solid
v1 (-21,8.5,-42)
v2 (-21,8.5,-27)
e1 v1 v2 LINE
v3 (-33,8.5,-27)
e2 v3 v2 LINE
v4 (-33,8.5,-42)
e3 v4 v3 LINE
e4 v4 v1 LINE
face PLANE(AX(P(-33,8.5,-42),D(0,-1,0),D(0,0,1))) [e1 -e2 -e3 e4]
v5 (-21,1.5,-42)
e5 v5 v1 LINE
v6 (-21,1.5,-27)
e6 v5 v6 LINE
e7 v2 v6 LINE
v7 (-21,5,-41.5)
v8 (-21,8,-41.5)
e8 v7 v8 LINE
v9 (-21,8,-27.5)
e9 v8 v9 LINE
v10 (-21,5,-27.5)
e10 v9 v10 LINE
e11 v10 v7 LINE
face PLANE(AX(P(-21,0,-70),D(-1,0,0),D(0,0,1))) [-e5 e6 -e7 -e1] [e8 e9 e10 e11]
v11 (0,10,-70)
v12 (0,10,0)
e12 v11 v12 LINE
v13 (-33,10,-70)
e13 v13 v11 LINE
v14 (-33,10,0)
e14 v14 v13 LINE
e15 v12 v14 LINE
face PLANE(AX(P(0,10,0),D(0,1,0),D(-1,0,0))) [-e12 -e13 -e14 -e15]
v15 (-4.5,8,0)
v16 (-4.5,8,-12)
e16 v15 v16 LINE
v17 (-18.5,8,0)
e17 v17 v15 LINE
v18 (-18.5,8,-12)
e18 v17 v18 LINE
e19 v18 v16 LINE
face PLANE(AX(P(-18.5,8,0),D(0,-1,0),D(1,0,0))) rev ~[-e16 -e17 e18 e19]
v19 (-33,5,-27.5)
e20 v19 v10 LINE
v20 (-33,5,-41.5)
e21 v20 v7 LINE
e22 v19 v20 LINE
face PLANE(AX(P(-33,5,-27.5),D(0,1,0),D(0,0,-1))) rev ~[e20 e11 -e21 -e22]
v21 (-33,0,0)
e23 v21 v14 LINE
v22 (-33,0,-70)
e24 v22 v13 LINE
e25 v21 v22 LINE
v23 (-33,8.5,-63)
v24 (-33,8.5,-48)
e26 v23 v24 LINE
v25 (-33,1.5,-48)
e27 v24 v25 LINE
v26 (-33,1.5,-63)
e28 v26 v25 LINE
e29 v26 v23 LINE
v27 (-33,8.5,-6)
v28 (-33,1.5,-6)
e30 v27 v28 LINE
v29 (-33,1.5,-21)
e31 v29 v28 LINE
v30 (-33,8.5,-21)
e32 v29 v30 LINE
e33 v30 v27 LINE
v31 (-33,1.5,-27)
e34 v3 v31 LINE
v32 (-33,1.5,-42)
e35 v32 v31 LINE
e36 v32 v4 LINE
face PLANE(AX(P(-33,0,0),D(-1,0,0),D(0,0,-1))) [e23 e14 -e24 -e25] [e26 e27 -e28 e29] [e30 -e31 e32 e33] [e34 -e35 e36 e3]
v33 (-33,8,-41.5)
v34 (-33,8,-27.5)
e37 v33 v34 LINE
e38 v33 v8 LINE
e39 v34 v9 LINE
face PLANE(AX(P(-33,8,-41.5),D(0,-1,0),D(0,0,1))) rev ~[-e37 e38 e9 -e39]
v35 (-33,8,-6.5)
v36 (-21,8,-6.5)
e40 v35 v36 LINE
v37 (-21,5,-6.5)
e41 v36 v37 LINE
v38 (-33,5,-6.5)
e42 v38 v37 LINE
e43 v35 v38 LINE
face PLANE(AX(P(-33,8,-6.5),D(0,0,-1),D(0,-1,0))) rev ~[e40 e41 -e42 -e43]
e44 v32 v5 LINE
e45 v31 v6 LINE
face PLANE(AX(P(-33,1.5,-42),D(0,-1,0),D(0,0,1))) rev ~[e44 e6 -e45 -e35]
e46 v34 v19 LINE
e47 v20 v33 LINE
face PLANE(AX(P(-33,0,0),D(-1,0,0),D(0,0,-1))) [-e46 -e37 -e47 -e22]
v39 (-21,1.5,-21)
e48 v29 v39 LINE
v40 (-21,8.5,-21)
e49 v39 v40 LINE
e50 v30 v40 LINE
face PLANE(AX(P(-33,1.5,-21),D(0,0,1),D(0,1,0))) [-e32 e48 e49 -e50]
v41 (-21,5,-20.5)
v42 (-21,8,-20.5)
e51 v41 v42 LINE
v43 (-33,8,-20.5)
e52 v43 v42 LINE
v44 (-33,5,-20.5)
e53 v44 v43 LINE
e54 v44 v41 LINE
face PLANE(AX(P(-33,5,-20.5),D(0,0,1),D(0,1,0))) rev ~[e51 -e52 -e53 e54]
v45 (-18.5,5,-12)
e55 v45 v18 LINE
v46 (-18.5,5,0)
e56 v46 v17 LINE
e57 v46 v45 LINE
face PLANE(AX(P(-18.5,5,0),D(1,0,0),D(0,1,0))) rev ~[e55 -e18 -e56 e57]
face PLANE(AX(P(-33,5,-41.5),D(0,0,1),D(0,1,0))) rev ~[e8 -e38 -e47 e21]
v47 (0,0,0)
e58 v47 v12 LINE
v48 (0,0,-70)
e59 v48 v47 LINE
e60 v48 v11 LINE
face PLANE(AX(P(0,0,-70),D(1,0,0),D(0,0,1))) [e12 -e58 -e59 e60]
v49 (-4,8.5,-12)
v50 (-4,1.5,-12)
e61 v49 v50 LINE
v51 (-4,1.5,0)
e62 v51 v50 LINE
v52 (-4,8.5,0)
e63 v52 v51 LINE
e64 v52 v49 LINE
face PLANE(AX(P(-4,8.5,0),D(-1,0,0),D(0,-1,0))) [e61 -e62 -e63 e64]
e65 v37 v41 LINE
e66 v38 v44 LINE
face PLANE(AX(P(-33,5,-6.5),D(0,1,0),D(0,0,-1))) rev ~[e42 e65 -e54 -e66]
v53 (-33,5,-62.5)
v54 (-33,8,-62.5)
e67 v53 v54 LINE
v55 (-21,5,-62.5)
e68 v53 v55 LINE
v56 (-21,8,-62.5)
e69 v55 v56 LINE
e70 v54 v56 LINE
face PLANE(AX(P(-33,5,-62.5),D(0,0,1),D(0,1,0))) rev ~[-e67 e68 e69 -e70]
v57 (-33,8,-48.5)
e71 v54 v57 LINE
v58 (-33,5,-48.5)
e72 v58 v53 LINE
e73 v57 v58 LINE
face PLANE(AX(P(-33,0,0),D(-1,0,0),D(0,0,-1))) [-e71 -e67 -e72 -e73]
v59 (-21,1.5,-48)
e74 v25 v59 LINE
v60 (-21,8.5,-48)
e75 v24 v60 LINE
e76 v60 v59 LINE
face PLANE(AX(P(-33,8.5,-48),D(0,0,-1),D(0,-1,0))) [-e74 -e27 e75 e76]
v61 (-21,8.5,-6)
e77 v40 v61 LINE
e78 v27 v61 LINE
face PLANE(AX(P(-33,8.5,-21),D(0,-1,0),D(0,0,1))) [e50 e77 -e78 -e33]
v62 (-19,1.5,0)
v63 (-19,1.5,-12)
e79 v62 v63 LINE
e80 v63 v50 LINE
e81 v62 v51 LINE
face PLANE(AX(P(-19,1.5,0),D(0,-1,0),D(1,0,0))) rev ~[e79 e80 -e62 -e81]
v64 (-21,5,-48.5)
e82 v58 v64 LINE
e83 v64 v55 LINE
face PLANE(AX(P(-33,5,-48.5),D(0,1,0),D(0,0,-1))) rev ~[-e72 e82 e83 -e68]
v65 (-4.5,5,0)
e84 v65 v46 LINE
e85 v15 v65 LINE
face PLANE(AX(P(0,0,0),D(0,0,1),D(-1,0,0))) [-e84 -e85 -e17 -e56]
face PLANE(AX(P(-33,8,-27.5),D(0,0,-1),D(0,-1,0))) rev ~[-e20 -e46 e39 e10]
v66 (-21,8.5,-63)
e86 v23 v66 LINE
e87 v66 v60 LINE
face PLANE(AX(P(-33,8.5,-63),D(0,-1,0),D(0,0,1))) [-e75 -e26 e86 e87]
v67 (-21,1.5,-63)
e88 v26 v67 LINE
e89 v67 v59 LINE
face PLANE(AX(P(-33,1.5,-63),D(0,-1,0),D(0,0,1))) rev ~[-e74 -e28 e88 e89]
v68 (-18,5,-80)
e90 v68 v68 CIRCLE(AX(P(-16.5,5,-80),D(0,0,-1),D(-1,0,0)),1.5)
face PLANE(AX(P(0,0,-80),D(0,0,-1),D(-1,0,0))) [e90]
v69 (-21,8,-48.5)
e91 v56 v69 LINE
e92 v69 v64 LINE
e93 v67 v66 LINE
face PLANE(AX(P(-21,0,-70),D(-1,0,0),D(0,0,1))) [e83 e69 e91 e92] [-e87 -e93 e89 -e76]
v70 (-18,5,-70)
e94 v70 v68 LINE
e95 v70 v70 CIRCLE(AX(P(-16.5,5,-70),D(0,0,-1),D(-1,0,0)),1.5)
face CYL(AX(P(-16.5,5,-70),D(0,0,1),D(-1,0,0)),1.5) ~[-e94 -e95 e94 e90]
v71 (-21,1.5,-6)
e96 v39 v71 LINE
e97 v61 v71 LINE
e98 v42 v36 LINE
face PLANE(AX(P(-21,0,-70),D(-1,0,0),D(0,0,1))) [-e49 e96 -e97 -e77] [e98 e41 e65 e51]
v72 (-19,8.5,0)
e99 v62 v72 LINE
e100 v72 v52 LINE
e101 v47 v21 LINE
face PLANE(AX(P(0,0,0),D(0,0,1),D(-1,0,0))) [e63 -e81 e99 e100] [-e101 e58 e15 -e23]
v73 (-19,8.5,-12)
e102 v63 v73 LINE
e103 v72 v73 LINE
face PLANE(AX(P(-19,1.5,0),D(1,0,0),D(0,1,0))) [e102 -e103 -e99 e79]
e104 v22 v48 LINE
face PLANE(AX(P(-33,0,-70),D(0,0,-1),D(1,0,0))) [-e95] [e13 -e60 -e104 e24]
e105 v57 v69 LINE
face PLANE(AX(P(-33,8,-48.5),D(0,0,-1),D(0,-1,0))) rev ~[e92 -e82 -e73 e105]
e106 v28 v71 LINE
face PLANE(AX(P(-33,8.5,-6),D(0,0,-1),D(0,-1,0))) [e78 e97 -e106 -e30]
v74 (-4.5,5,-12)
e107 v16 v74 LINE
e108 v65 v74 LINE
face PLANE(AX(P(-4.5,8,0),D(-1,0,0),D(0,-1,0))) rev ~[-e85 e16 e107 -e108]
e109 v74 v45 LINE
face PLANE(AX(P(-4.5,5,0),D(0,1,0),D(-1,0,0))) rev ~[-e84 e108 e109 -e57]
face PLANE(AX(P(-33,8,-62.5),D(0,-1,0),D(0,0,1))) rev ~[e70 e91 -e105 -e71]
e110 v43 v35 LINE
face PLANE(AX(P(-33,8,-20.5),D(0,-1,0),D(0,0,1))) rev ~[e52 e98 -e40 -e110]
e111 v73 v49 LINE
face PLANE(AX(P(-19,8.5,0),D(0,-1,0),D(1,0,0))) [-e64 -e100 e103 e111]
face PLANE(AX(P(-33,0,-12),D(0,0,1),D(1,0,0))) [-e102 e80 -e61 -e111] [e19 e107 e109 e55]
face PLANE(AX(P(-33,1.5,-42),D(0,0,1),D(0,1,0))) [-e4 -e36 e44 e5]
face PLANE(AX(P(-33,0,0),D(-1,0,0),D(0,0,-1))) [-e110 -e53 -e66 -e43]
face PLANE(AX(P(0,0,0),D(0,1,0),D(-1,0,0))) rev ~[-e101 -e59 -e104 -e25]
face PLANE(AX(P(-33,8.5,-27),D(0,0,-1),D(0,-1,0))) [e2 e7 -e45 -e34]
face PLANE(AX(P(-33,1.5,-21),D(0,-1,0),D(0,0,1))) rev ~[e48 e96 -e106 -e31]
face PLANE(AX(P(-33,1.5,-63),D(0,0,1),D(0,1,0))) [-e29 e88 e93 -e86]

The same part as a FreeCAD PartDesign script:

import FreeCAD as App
import Part
import Sketcher

V = App.Vector
Q = App.Units.Quantity


def add_polygon(sketch, points):
    """Adds a closed chain of lines whose ends are joined by coincident constraints."""
    first, n = sketch.GeometryCount, len(points)
    for a, b in zip(points, points[1:] + points[:1]):
        sketch.addGeometry(Part.LineSegment(App.Vector(*a, 0), App.Vector(*b, 0)), False)
    for i in range(n):
        sketch.addConstraint(Sketcher.Constraint("Coincident", first + i, 2, first + (i + 1) % n, 1))

doc = App.newDocument("Part")
body = doc.addObject("PartDesign::Body", "Body")

# Sketch on XZ plane
sketch1 = doc.addObject("Sketcher::SketchObject", "Sketch")
body.addObject(sketch1)
sketch1.AttachmentSupport = (doc.XZ_Plane, [""])
sketch1.MapMode = "FlatFace"
add_polygon(sketch1, [(-33, 0), (0, 0), (0, -70), (-33, -70)])  # lines 0-3
sketch1.addConstraint([
    Sketcher.Constraint("Horizontal", 0),
    Sketcher.Constraint("Vertical", 1),
    Sketcher.Constraint("Horizontal", 2),
    Sketcher.Constraint("Vertical", 3),
    Sketcher.Constraint("Coincident", 0, 2, -1, 1),
    Sketcher.Constraint("DistanceX", 0, 1, 0, 2, Q("33 mm")),
    Sketcher.Constraint("DistanceY", 1, 2, 1, 1, Q("70 mm")),
])
pad1 = doc.addObject("PartDesign::Pad", "Pad")
body.addObject(pad1)
pad1.Profile = sketch1
pad1.Length = 10
pad1.Reversed = True

# Sketch on XY plane
sketch2 = doc.addObject("Sketcher::SketchObject", "Sketch001")
body.addObject(sketch2)
sketch2.AttachmentSupport = (doc.XY_Plane, [""])
sketch2.MapMode = "FlatFace"
add_polygon(sketch2, [(-19, 8.5), (-19, 1.5), (-4, 1.5), (-4, 8.5)])  # lines 0-3
add_polygon(sketch2, [(-18.5, 5), (-18.5, 8), (-4.5, 8), (-4.5, 5)])  # lines 4-7
sketch2.addConstraint([
    Sketcher.Constraint("Vertical", 0),
    Sketcher.Constraint("Horizontal", 1),
    Sketcher.Constraint("Vertical", 2),
    Sketcher.Constraint("Horizontal", 3),
    Sketcher.Constraint("Vertical", 4),
    Sketcher.Constraint("Horizontal", 5),
    Sketcher.Constraint("Vertical", 6),
    Sketcher.Constraint("Horizontal", 7),
    Sketcher.Constraint("DistanceX", 1, 1, 1, 2, Q("15 mm")),
    Sketcher.Constraint("DistanceX", 5, 1, 5, 2, Q("14 mm")),
    Sketcher.Constraint("DistanceY", 0, 2, 0, 1, Q("7 mm")),
    Sketcher.Constraint("DistanceY", 4, 1, 4, 2, Q("3 mm")),
    Sketcher.Constraint("DistanceX", 1, 2, -1, 1, Q("4 mm")),
    Sketcher.Constraint("DistanceY", -1, 1, 0, 2, Q("1.5 mm")),
    Sketcher.Constraint("DistanceX", 3, 2, 4, 2, Q("0.5 mm")),
    Sketcher.Constraint("DistanceY", 4, 2, 3, 2, Q("0.5 mm")),
])
pocket1 = doc.addObject("PartDesign::Pocket", "Pocket")
body.addObject(pocket1)
pocket1.Profile = sketch2
pocket1.Length = 12

# Sketch on YZ plane
sketch3 = doc.addObject("Sketcher::SketchObject", "Sketch002")
body.addObject(sketch3)
sketch3.AttachmentSupport = (doc.YZ_Plane, [""])
sketch3.MapMode = "FlatFace"
sketch3.AttachmentOffset = App.Placement(V(0, 0, -33), App.Rotation())
add_polygon(sketch3, [(8.5, -63), (1.5, -63), (1.5, -48), (8.5, -48)])  # lines 0-3
add_polygon(sketch3, [(5, -62.5), (8, -62.5), (8, -48.5), (5, -48.5)])  # lines 4-7
add_polygon(sketch3, [(8.5, -42), (1.5, -42), (1.5, -27), (8.5, -27)])  # lines 8-11
add_polygon(sketch3, [(5, -27.5), (5, -41.5), (8, -41.5), (8, -27.5)])  # lines 12-15
add_polygon(sketch3, [(8.5, -21), (1.5, -21), (1.5, -6), (8.5, -6)])  # lines 16-19
add_polygon(sketch3, [(5, -6.5), (5, -20.5), (8, -20.5), (8, -6.5)])  # lines 20-23
sketch3.addConstraint([
    Sketcher.Constraint("Horizontal", 0),
    Sketcher.Constraint("Vertical", 1),
    Sketcher.Constraint("Horizontal", 2),
    Sketcher.Constraint("Vertical", 3),
    Sketcher.Constraint("Horizontal", 4),
    Sketcher.Constraint("Vertical", 5),
    Sketcher.Constraint("Horizontal", 6),
    Sketcher.Constraint("Vertical", 7),
    Sketcher.Constraint("Horizontal", 8),
    Sketcher.Constraint("Vertical", 9),
    Sketcher.Constraint("Horizontal", 10),
    Sketcher.Constraint("Vertical", 11),
    Sketcher.Constraint("Vertical", 12),
    Sketcher.Constraint("Horizontal", 13),
    Sketcher.Constraint("Vertical", 14),
    Sketcher.Constraint("Horizontal", 15),
    Sketcher.Constraint("Horizontal", 16),
    Sketcher.Constraint("Vertical", 17),
    Sketcher.Constraint("Horizontal", 18),
    Sketcher.Constraint("Vertical", 19),
    Sketcher.Constraint("Vertical", 20),
    Sketcher.Constraint("Horizontal", 21),
    Sketcher.Constraint("Vertical", 22),
    Sketcher.Constraint("Horizontal", 23),
    Sketcher.Constraint("Vertical", 1, 2, 8, 2),
    Sketcher.Constraint("Vertical", 3, 2, 10, 2),
    Sketcher.Constraint("Vertical", 7, 2, 12, 2),
    Sketcher.Constraint("Vertical", 5, 2, 13, 2),
    Sketcher.Constraint("Vertical", 9, 2, 16, 2),
    Sketcher.Constraint("Vertical", 11, 2, 18, 2),
    Sketcher.Constraint("Vertical", 15, 2, 20, 2),
    Sketcher.Constraint("Vertical", 14, 2, 21, 2),
    Sketcher.Constraint("Equal", 3, 9),
    Sketcher.Constraint("Equal", 7, 12),
    Sketcher.Constraint("Equal", 11, 17),
    Sketcher.Constraint("Equal", 14, 20),
    Sketcher.Constraint("DistanceX", 0, 2, 0, 1, Q("7 mm")),
    Sketcher.Constraint("DistanceX", 4, 1, 4, 2, Q("3 mm")),
    Sketcher.Constraint("DistanceY", 1, 1, 1, 2, Q("15 mm")),
    Sketcher.Constraint("DistanceY", 5, 1, 5, 2, Q("14 mm")),
    Sketcher.Constraint("DistanceY", 16, 2, -1, 1, Q("21 mm")),
    Sketcher.Constraint("DistanceY", 1, 2, 9, 2, Q("21 mm")),
    Sketcher.Constraint("DistanceY", 6, 2, 12, 2, Q("7 mm")),
    Sketcher.Constraint("DistanceY", 9, 2, 17, 2, Q("21 mm")),
    Sketcher.Constraint("DistanceY", 15, 2, 20, 2, Q("7 mm")),
    Sketcher.Constraint("DistanceX", -1, 1, 0, 2, Q("1.5 mm")),
    Sketcher.Constraint("DistanceX", 4, 2, 3, 2, Q("0.5 mm")),
    Sketcher.Constraint("DistanceY", 3, 2, 4, 2, Q("0.5 mm")),
])
pocket2 = doc.addObject("PartDesign::Pocket", "Pocket001")
body.addObject(pocket2)
pocket2.Profile = sketch3
pocket2.Length = 12
pocket2.Reversed = True

# Sketch on XY plane
sketch4 = doc.addObject("Sketcher::SketchObject", "Sketch003")
body.addObject(sketch4)
sketch4.AttachmentSupport = (doc.XY_Plane, [""])
sketch4.MapMode = "FlatFace"
sketch4.AttachmentOffset = App.Placement(V(0, 0, -70), App.Rotation())
sketch4.addGeometry(Part.Circle(V(-16.5, 5, 0), V(0, 0, 1), 1.5), False)
sketch4.addConstraint([
    Sketcher.Constraint("Diameter", 0, Q("3 mm")),
    Sketcher.Constraint("DistanceY", -1, 1, 0, 3, Q("5 mm")),
    Sketcher.Constraint("DistanceX", 0, 3, -1, 1, Q("16.5 mm")),
])
pad2 = doc.addObject("PartDesign::Pad", "Pad001")
body.addObject(pad2)
pad2.Profile = sketch4
pad2.Length = 10
pad2.Reversed = True

doc.recompute()
